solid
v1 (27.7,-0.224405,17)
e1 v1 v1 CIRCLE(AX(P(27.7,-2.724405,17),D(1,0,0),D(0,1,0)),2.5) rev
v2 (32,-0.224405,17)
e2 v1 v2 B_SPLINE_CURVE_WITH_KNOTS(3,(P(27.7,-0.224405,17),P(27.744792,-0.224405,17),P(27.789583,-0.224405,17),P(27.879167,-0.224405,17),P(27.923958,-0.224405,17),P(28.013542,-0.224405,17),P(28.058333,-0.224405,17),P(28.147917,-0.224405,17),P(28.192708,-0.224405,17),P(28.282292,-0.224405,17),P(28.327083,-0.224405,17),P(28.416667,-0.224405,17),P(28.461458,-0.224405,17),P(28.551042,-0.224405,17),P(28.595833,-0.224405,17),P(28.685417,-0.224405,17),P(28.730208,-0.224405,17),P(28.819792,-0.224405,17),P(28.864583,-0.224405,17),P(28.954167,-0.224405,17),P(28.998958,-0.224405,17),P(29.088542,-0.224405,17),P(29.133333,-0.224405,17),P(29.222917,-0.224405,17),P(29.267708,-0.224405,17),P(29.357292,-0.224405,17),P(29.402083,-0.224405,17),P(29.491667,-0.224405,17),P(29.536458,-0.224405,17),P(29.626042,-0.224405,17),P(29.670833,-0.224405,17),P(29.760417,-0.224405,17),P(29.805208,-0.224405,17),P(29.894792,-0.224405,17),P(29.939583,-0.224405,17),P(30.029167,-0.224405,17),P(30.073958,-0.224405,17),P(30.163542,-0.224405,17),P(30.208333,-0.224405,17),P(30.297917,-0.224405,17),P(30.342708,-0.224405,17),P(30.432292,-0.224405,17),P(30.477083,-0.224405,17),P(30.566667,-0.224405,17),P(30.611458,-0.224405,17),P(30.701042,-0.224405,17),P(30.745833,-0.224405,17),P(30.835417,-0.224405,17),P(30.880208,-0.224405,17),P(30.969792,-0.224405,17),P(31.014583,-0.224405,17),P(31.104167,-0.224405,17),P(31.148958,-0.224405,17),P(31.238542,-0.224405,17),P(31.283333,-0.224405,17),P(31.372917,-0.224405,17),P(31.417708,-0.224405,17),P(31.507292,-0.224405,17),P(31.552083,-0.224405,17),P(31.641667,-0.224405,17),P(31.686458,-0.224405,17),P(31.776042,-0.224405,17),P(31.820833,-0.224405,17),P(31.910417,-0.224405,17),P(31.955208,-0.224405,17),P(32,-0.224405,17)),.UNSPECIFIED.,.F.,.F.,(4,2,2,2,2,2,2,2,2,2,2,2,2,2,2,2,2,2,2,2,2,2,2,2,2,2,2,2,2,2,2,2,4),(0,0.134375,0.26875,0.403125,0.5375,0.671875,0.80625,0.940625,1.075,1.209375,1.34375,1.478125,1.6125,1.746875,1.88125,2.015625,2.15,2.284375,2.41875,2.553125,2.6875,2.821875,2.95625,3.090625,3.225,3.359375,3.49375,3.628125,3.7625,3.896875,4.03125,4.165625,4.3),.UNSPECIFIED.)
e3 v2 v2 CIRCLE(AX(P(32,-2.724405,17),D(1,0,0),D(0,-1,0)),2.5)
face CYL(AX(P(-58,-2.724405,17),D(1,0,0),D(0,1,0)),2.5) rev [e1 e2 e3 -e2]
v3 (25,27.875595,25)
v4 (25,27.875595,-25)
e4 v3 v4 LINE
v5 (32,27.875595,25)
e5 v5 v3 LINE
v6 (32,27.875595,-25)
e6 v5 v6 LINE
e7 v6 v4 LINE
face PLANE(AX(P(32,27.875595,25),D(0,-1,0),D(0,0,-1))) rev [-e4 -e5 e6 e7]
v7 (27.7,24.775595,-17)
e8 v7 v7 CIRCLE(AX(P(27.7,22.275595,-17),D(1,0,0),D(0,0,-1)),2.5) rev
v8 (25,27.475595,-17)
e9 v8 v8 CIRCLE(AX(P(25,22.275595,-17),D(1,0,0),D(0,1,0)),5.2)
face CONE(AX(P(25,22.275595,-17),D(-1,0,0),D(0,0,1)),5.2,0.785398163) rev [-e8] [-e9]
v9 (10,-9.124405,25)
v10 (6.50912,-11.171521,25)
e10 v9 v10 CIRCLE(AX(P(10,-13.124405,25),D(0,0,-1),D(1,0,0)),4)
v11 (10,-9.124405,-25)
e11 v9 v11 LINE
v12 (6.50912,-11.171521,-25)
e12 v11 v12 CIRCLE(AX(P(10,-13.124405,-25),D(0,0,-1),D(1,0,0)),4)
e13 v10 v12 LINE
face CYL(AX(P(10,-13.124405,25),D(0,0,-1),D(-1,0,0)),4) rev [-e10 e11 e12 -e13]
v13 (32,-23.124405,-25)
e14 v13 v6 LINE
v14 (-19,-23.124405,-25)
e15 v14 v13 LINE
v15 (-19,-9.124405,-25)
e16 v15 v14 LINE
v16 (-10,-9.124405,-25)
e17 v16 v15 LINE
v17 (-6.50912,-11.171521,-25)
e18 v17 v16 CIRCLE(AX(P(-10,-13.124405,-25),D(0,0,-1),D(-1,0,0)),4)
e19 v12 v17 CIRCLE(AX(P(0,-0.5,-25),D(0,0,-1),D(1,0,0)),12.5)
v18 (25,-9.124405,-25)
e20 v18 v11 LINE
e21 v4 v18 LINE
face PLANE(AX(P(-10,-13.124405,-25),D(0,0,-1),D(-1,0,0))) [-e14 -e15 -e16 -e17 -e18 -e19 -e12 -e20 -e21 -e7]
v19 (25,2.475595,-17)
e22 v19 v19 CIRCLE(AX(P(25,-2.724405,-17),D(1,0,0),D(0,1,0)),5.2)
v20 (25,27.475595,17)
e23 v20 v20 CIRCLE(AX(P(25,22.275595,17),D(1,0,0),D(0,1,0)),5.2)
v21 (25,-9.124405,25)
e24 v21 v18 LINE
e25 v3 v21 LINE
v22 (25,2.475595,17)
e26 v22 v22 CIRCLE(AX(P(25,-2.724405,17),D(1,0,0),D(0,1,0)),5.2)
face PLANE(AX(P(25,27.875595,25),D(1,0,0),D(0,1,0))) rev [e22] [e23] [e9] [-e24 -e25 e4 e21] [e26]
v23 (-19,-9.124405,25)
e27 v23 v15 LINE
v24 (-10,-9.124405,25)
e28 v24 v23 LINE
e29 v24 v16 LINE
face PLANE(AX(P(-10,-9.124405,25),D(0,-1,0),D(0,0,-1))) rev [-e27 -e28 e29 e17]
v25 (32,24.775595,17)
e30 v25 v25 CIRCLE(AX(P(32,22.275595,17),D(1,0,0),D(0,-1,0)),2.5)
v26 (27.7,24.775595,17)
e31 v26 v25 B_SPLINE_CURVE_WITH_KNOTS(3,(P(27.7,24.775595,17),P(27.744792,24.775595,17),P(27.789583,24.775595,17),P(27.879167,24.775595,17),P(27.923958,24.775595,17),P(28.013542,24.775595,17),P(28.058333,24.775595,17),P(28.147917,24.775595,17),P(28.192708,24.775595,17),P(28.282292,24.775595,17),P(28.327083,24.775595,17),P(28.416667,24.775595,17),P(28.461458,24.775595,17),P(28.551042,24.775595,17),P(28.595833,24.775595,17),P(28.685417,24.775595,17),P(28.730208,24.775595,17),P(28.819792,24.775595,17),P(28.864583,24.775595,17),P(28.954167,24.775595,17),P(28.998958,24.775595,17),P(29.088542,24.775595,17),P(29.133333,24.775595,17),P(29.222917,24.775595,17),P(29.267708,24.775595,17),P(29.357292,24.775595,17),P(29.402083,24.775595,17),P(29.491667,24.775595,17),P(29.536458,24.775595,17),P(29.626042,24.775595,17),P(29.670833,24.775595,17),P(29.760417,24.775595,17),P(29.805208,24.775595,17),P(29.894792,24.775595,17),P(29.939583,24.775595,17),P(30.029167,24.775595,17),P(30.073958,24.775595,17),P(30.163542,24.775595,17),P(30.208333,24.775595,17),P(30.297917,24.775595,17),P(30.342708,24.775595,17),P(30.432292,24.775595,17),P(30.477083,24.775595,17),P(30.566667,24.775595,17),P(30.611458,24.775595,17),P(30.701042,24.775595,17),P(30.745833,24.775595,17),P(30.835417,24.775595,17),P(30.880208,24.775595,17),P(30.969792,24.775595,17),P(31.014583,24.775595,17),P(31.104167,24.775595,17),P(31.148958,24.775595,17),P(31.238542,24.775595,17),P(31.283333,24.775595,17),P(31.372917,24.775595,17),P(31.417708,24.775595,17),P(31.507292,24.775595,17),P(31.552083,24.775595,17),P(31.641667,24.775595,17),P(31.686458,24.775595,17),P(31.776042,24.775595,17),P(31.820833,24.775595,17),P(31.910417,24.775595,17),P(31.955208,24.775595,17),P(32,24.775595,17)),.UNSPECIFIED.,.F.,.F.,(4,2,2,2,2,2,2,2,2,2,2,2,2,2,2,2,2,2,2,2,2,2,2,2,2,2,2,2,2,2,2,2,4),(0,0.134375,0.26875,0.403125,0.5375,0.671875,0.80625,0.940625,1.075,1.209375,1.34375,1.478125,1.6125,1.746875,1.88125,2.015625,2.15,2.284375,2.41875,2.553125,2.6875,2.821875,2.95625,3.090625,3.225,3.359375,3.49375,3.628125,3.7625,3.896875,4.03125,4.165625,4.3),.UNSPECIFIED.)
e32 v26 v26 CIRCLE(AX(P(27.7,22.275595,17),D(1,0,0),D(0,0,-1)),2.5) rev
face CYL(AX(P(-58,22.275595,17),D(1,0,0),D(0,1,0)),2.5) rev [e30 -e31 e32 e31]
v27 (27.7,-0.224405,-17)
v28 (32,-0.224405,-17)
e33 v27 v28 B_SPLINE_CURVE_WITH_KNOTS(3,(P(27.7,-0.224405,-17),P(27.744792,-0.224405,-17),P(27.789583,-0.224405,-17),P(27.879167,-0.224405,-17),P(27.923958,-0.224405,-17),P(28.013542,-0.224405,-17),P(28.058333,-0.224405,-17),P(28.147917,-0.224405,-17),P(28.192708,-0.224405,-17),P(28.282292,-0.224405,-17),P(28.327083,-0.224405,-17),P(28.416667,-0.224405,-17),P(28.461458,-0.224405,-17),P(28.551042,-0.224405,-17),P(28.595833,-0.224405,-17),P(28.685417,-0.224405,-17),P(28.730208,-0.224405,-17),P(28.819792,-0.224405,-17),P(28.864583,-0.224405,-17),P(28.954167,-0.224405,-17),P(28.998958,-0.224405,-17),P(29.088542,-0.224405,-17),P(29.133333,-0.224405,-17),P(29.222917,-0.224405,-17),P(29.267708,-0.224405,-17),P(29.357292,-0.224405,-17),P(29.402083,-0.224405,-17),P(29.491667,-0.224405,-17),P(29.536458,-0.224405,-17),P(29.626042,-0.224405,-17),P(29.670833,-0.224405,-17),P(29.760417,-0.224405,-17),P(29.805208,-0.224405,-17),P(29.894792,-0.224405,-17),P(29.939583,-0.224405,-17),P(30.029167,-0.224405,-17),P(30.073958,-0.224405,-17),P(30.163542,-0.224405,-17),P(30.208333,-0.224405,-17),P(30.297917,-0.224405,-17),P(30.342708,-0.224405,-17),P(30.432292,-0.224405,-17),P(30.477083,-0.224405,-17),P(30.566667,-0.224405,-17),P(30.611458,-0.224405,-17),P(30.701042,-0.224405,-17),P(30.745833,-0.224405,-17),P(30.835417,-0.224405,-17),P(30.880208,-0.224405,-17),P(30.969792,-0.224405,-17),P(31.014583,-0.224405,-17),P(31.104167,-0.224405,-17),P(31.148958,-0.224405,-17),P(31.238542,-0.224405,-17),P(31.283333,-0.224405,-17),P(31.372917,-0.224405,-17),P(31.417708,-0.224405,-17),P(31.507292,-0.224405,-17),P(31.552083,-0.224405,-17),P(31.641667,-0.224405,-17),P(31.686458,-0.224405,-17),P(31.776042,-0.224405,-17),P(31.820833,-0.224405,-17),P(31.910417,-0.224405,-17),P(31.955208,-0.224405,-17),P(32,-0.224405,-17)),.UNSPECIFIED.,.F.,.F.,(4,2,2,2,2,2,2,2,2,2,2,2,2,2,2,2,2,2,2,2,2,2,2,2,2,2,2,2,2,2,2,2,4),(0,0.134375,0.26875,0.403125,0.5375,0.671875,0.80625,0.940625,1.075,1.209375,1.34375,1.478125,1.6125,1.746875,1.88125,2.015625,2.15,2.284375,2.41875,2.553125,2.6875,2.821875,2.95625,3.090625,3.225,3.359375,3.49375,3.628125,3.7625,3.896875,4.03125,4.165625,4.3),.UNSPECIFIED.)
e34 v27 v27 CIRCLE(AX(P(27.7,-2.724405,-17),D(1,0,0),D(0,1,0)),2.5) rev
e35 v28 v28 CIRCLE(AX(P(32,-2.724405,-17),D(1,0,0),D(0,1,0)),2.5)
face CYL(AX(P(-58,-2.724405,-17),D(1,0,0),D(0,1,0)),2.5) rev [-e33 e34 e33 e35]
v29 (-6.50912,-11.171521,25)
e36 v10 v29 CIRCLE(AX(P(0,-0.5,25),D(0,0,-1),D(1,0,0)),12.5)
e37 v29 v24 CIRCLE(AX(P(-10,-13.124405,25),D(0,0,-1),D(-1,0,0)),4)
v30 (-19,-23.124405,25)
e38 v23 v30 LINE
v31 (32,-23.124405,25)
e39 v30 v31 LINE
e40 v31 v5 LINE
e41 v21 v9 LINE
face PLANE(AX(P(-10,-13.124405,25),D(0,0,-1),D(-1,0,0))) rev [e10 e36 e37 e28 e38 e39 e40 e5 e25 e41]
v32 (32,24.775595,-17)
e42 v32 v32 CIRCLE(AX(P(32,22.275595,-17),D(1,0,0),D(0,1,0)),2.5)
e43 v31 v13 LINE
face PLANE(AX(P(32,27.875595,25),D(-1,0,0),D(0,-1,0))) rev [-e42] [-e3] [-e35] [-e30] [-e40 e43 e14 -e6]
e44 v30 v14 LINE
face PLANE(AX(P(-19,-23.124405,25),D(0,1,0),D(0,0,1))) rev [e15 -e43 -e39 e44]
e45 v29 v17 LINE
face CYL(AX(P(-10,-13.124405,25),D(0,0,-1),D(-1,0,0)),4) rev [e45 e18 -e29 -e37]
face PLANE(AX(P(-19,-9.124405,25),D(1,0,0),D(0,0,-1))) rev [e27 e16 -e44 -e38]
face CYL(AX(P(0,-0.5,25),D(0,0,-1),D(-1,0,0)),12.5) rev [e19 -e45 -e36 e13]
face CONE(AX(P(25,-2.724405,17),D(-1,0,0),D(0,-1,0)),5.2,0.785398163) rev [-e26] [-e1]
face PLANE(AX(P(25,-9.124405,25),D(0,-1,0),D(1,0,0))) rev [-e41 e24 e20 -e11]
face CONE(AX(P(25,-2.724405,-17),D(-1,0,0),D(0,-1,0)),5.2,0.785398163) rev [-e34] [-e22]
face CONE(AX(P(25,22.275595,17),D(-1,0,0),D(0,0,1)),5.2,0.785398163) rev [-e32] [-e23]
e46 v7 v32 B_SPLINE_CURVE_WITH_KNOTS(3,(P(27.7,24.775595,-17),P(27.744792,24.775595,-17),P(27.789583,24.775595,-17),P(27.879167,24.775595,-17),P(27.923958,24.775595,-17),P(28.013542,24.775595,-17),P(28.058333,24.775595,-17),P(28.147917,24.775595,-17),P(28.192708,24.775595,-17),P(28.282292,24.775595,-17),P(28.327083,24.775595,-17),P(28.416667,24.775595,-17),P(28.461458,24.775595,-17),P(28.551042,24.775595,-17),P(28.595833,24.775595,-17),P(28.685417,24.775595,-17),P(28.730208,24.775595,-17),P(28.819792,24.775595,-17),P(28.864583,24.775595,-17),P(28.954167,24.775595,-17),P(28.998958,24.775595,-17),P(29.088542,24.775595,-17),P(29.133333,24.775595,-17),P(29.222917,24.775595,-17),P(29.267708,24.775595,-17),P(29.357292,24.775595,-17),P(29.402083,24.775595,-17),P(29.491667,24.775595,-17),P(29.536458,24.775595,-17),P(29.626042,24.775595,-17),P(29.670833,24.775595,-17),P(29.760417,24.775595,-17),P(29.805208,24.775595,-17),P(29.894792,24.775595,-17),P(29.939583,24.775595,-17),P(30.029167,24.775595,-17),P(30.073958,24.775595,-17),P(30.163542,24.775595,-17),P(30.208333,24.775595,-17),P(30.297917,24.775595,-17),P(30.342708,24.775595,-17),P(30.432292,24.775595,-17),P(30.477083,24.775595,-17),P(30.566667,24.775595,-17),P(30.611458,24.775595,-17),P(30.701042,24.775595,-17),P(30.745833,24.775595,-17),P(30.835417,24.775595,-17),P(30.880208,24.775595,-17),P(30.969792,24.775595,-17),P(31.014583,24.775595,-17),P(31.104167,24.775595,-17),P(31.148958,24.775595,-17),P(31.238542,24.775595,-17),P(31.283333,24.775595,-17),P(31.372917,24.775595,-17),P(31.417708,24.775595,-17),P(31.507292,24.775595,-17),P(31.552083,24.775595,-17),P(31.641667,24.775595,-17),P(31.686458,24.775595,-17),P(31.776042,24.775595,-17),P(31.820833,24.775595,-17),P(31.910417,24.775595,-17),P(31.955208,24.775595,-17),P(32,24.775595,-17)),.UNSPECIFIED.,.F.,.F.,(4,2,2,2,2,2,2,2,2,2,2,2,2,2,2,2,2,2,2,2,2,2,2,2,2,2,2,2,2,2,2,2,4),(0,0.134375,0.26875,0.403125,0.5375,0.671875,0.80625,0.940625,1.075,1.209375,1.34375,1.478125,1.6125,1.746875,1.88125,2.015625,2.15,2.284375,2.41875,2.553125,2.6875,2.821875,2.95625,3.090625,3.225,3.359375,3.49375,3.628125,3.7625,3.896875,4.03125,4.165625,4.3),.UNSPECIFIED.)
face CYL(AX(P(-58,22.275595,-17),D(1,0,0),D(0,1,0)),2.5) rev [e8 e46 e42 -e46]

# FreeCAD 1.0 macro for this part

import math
import FreeCAD as App
import Part
import Sketcher
from FreeCAD import Vector


def edges_at(feature, points):
    """Names of the edges that pass closest to the given points."""
    edges = feature.Shape.Edges
    near = lambda p: min(range(len(edges)), key=lambda i: edges[i].distToShape(Part.Vertex(*p))[0])
    return sorted({f"Edge{near(p) + 1}" for p in points})

doc = App.newDocument("Part")
params = doc.addObject("Spreadsheet::Sheet", "Params")
for row, (alias, value) in enumerate([
    ("sketch1_radius", "4 mm"),
    ("sketch1_radius2", "12.5 mm"),
    ("sketch1_width", "9 mm"),
    ("sketch1_width2", "51 mm"),
    ("sketch1_width3", "7 mm"),
    ("pad1_length", "50 mm"),
    ("sketch2_diameter", "5 mm"),
    ("pocket1_length", "90 mm"),
    ("chamfer_size", "2.7 mm"),
], start=1):
    params.set(f"A{row}", alias)
    params.set(f"B{row}", "=" + value)
    params.setAlias(f"B{row}", alias)

body = doc.addObject("PartDesign::Body", "Body")

# Sketch on XY plane
sketch1 = body.newObject("Sketcher::SketchObject", "Sketch")
sketch1.AttachmentSupport = (doc.getObject("XY_Plane"), [""])
sketch1.MapMode = "FlatFace"
sketch1.addGeometry(Part.LineSegment(Vector(-10, -9.1, 0), Vector(-19, -9.1, 0)), False)
sketch1.addGeometry(Part.LineSegment(Vector(-19, -9.1, 0), Vector(-19, -23.1, 0)), False)
sketch1.addGeometry(Part.LineSegment(Vector(-19, -23.1, 0), Vector(32, -23.1, 0)), False)
sketch1.addGeometry(Part.LineSegment(Vector(32, -23.1, 0), Vector(32, 27.9, 0)), False)
sketch1.addGeometry(Part.LineSegment(Vector(32, 27.9, 0), Vector(25, 27.9, 0)), False)
sketch1.addGeometry(Part.LineSegment(Vector(25, 27.9, 0), Vector(25, -9.1, 0)), False)
sketch1.addGeometry(Part.LineSegment(Vector(25, -9.1, 0), Vector(10, -9.1, 0)), False)
sketch1.addGeometry(Part.ArcOfCircle(Part.Circle(Vector(10, -13.1, 0), Vector(0, 0, 1), 4), math.radians(151), math.radians(450)), False)
sketch1.addGeometry(Part.ArcOfCircle(Part.Circle(Vector(0, -0.5, 0), Vector(0, 0, 1), 12.5), math.radians(-121), math.radians(-59)), False)
sketch1.addGeometry(Part.ArcOfCircle(Part.Circle(Vector(-10, -13.1, 0), Vector(0, 0, 1), 4), math.radians(90), math.radians(389)), False)
sketch1.addConstraint(Sketcher.Constraint("Coincident", 0, 2, 1, 1))
sketch1.addConstraint(Sketcher.Constraint("Coincident", 1, 2, 2, 1))
sketch1.addConstraint(Sketcher.Constraint("Coincident", 2, 2, 3, 1))
sketch1.addConstraint(Sketcher.Constraint("Coincident", 3, 2, 4, 1))
sketch1.addConstraint(Sketcher.Constraint("Coincident", 4, 2, 5, 1))
sketch1.addConstraint(Sketcher.Constraint("Coincident", 5, 2, 6, 1))
sketch1.addConstraint(Sketcher.Constraint("Tangent", 6, 2, 7, 2))
sketch1.addConstraint(Sketcher.Constraint("Coincident", 7, 1, 8, 2))
sketch1.addConstraint(Sketcher.Constraint("Coincident", 8, 1, 9, 2))
sketch1.addConstraint(Sketcher.Constraint("Tangent", 9, 1, 0, 1))
sketch1.addConstraint(Sketcher.Constraint("Horizontal", 0))
sketch1.addConstraint(Sketcher.Constraint("Vertical", 1))
sketch1.addConstraint(Sketcher.Constraint("Horizontal", 2))
sketch1.addConstraint(Sketcher.Constraint("Vertical", 3))
sketch1.addConstraint(Sketcher.Constraint("Horizontal", 4))
sketch1.addConstraint(Sketcher.Constraint("Vertical", 5))
sketch1.addConstraint(Sketcher.Constraint("Horizontal", 6))
sketch1.addConstraint(Sketcher.Constraint("Equal", 7, 9))
sketch1.addConstraint(Sketcher.Constraint("Symmetric", 7, 3, 9, 3, -2))
sketch1.addConstraint(Sketcher.Constraint("PointOnObject", 8, 3, -2))
sketch1.addConstraint(Sketcher.Constraint("Equal", 2, 3))
sketch1.addConstraint(Sketcher.Constraint("Radius", 7, 4.0))
sketch1.addConstraint(Sketcher.Constraint("Radius", 8, 12.5))
sketch1.addConstraint(Sketcher.Constraint("DistanceX", 0, 2, 0, 1, 9.0))
sketch1.addConstraint(Sketcher.Constraint("DistanceX", 2, 1, 2, 2, 51.0))
sketch1.addConstraint(Sketcher.Constraint("DistanceX", 4, 2, 4, 1, 7.0))
sketch1.addConstraint(Sketcher.Constraint("DistanceX", 6, 2, 6, 1, 15.0))
sketch1.addConstraint(Sketcher.Constraint("DistanceY", 1, 2, 1, 1, 14.0))
sketch1.addConstraint(Sketcher.Constraint("DistanceY", 8, 3, -1, 1, 0.5))
sketch1.addConstraint(Sketcher.Constraint("DistanceX", -1, 1, 7, 1, 6.50912))
sketch1.setExpression("Constraints[21]", "Params.sketch1_radius")
sketch1.setExpression("Constraints[22]", "Params.sketch1_radius2")
sketch1.setExpression("Constraints[23]", "Params.sketch1_width")
sketch1.setExpression("Constraints[24]", "Params.sketch1_width2")
sketch1.setExpression("Constraints[25]", "Params.sketch1_width3")
pad1 = body.newObject("PartDesign::Pad", "Pad")
pad1.Profile = sketch1
pad1.setExpression("Length", "Params.pad1_length")
pad1.Midplane = True

# Sketch on YZ plane
sketch2 = body.newObject("Sketcher::SketchObject", "Sketch001")
sketch2.AttachmentSupport = (doc.getObject("YZ_Plane"), [""])
sketch2.MapMode = "FlatFace"
sketch2.AttachmentOffset = App.Placement(Vector(0, 0, 32), App.Rotation())
sketch2.addGeometry(Part.Circle(Vector(-2.7, -17, 0), Vector(0, 0, 1), 2.5), False)
sketch2.addGeometry(Part.Circle(Vector(22.3, -17, 0), Vector(0, 0, 1), 2.5), False)
sketch2.addGeometry(Part.Circle(Vector(-2.7, 17, 0), Vector(0, 0, 1), 2.5), False)
sketch2.addGeometry(Part.Circle(Vector(22.3, 17, 0), Vector(0, 0, 1), 2.5), False)
sketch2.addConstraint(Sketcher.Constraint("Equal", 0, 1))
sketch2.addConstraint(Sketcher.Constraint("Equal", 1, 2))
sketch2.addConstraint(Sketcher.Constraint("Equal", 2, 3))
sketch2.addConstraint(Sketcher.Constraint("Symmetric", 0, 3, 2, 3, -1))
sketch2.addConstraint(Sketcher.Constraint("Symmetric", 1, 3, 3, 3, -1))
sketch2.addConstraint(Sketcher.Constraint("Horizontal", 0, 3, 1, 3))
sketch2.addConstraint(Sketcher.Constraint("Diameter", 0, 5.0))
sketch2.addConstraint(Sketcher.Constraint("DistanceY", 0, 3, -1, 1, 17.0))
sketch2.addConstraint(Sketcher.Constraint("DistanceX", 0, 3, 1, 3, 25.0))
sketch2.addConstraint(Sketcher.Constraint("DistanceX", 0, 3, -1, 1, 2.724405))
sketch2.setExpression("Constraints[6]", "Params.sketch2_diameter")
pocket1 = body.newObject("PartDesign::Pocket", "Pocket")
pocket1.Profile = sketch2
pocket1.setExpression("Length", "Params.pocket1_length")
doc.recompute()

chamfer = body.newObject("PartDesign::Chamfer", "Chamfer")
chamfer.Base = (pocket1, edges_at(pocket1, [
    (25, 19.776, -17),
    (25, -5.224, 17),
    (25, 19.776, 17),
    (25, -5.224, -17),
]))
chamfer.setExpression("Size", "Params.chamfer_size")

doc.recompute()
